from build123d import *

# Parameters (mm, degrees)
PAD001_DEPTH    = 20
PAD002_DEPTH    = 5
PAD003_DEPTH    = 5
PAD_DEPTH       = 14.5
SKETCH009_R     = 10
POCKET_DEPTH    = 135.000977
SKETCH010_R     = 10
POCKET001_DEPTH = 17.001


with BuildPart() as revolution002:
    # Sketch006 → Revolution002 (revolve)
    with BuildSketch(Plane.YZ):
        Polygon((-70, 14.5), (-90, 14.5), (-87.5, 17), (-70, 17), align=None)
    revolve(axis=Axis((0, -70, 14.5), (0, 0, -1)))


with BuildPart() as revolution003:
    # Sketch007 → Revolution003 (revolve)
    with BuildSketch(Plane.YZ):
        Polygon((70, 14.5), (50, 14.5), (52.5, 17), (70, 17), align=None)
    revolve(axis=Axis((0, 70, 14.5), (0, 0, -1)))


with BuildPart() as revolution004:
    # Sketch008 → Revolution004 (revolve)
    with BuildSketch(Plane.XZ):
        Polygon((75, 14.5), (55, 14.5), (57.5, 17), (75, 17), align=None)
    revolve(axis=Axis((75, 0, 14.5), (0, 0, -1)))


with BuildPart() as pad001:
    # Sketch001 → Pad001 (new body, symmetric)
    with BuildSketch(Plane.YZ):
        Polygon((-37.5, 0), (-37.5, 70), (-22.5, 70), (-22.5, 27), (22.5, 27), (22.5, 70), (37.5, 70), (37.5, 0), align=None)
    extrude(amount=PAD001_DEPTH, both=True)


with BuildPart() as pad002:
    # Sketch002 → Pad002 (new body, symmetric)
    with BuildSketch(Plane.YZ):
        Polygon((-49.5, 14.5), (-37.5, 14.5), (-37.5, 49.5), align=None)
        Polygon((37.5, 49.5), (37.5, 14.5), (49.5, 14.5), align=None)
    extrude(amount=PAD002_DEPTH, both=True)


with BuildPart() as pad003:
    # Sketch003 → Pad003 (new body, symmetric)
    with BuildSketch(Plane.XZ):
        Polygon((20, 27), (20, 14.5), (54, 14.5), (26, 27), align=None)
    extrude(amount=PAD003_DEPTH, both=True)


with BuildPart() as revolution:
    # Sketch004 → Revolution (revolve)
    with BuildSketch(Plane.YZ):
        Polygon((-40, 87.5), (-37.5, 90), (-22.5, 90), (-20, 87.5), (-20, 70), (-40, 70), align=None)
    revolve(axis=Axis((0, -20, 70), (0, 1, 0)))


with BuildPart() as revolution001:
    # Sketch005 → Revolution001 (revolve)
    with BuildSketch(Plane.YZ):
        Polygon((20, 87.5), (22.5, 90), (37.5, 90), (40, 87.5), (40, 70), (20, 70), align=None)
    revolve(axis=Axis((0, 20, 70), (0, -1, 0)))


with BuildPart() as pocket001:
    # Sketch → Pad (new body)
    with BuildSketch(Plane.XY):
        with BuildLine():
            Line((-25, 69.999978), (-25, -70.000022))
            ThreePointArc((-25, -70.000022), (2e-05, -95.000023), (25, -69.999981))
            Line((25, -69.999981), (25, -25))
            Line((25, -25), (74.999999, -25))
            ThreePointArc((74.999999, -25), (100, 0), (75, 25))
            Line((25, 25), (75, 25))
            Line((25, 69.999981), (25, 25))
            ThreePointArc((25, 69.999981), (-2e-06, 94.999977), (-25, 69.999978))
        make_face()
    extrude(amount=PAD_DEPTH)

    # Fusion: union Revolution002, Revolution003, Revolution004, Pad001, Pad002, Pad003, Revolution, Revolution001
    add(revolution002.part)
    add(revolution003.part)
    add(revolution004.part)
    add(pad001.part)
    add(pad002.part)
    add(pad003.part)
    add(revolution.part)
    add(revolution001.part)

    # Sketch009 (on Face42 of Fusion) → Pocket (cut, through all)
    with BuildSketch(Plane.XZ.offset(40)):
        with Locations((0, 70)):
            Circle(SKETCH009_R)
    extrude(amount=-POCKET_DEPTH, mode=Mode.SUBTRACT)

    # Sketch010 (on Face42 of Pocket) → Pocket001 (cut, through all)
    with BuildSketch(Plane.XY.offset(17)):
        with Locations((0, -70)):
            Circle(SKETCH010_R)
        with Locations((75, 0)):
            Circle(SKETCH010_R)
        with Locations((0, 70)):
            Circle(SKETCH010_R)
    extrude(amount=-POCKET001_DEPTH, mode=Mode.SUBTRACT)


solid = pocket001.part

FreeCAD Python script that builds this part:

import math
import FreeCAD as App
import Part
import Sketcher
from FreeCAD import Vector
Q = App.Units.Quantity


def add_polygon(sketch, points):
    """Adds a closed chain of lines whose ends are joined by coincident constraints."""
    first, n = sketch.GeometryCount, len(points)
    for a, b in zip(points, points[1:] + points[:1]):
        sketch.addGeometry(Part.LineSegment(App.Vector(*a, 0), App.Vector(*b, 0)), False)
    for i in range(n):
        sketch.addConstraint(Sketcher.Constraint("Coincident", first + i, 2, first + (i + 1) % n, 1))

doc = App.newDocument("Part")
body = doc.addObject("PartDesign::Body", "Body")

# Sketch on YZ plane
sketch1 = body.newObject("Sketcher::SketchObject", "Sketch")
sketch1.AttachmentSupport = (doc.getObject("YZ_Plane"), [""])
sketch1.MapMode = "FlatFace"
add_polygon(sketch1, [(-90, 14.5), (-70, 14.5), (-70, 17), (-87.5, 17)])  # lines 0-3
sketch1.addGeometry(Part.LineSegment(Vector(-70, 17, 0), Vector(-70, 14.5, 0)), True)  # axis
sketch1.addConstraint([
    Sketcher.Constraint("Horizontal", 0),
    Sketcher.Constraint("Vertical", 1),
    Sketcher.Constraint("Horizontal", 2),
    Sketcher.Constraint("Vertical", 4),
    Sketcher.Constraint("Coincident", 4, 1, 1, 2),
    Sketcher.Constraint("Horizontal", 3, 2, 4, 2),
    Sketcher.Constraint("DistanceX", 0, 1, 0, 2, Q("20 mm")),
    Sketcher.Constraint("Angle", 3, Q("-135 deg")),
    Sketcher.Constraint("DistanceX", 2, 2, 2, 1, Q("17.5 mm")),
    Sketcher.Constraint("DistanceX", 0, 2, -1, 1, Q("70 mm")),
    Sketcher.Constraint("DistanceY", -1, 1, 1, 2, Q("17 mm")),
])
revolution = body.newObject("PartDesign::Revolution", "Revolution")
revolution.Profile = sketch1
revolution.ReferenceAxis = (sketch1, ["Axis0"])
revolution.Angle = 360
body2 = doc.addObject("PartDesign::Body", "Body001")

# Sketch on YZ plane
sketch2 = body2.newObject("Sketcher::SketchObject", "Sketch001")
sketch2.AttachmentSupport = (doc.getObject("YZ_Plane001"), [""])
sketch2.MapMode = "FlatFace"
add_polygon(sketch2, [(50, 14.5), (70, 14.5), (70, 17), (52.5, 17)])  # lines 0-3
sketch2.addGeometry(Part.LineSegment(Vector(70, 17, 0), Vector(70, 14.5, 0)), True)  # axis
sketch2.addConstraint([
    Sketcher.Constraint("Horizontal", 0),
    Sketcher.Constraint("Vertical", 1),
    Sketcher.Constraint("Horizontal", 2),
    Sketcher.Constraint("Vertical", 4),
    Sketcher.Constraint("Coincident", 4, 1, 1, 2),
    Sketcher.Constraint("Horizontal", 3, 2, 4, 2),
    Sketcher.Constraint("DistanceX", 0, 1, 0, 2, Q("20 mm")),
    Sketcher.Constraint("Angle", 3, Q("-135 deg")),
    Sketcher.Constraint("DistanceX", 2, 2, 2, 1, Q("17.5 mm")),
    Sketcher.Constraint("DistanceX", -1, 1, 0, 2, Q("70 mm")),
    Sketcher.Constraint("DistanceY", -1, 1, 1, 2, Q("17 mm")),
])
revolution2 = body2.newObject("PartDesign::Revolution", "Revolution001")
revolution2.Profile = sketch2
revolution2.ReferenceAxis = (sketch2, ["Axis0"])
revolution2.Angle = 360
body3 = doc.addObject("PartDesign::Body", "Body002")

# Sketch on XZ plane
sketch3 = body3.newObject("Sketcher::SketchObject", "Sketch002")
sketch3.AttachmentSupport = (doc.getObject("XZ_Plane002"), [""])
sketch3.MapMode = "FlatFace"
add_polygon(sketch3, [(55, 14.5), (75, 14.5), (75, 17), (57.5, 17)])  # lines 0-3
sketch3.addGeometry(Part.LineSegment(Vector(75, 17, 0), Vector(75, 14.5, 0)), True)  # axis
sketch3.addConstraint([
    Sketcher.Constraint("Horizontal", 0),
    Sketcher.Constraint("Vertical", 1),
    Sketcher.Constraint("Horizontal", 2),
    Sketcher.Constraint("Vertical", 4),
    Sketcher.Constraint("Coincident", 4, 1, 1, 2),
    Sketcher.Constraint("Horizontal", 3, 2, 4, 2),
    Sketcher.Constraint("DistanceX", 0, 1, 0, 2, Q("20 mm")),
    Sketcher.Constraint("Angle", 3, Q("-135 deg")),
    Sketcher.Constraint("DistanceX", 2, 2, 2, 1, Q("17.5 mm")),
    Sketcher.Constraint("DistanceX", -1, 1, 0, 2, Q("75 mm")),
    Sketcher.Constraint("DistanceY", -1, 1, 1, 2, Q("17 mm")),
])
revolution3 = body3.newObject("PartDesign::Revolution", "Revolution002")
revolution3.Profile = sketch3
revolution3.ReferenceAxis = (sketch3, ["Axis0"])
revolution3.Angle = 360
body4 = doc.addObject("PartDesign::Body", "Body003")

# Sketch on YZ plane
sketch4 = body4.newObject("Sketcher::SketchObject", "Sketch003")
sketch4.AttachmentSupport = (doc.getObject("YZ_Plane003"), [""])
sketch4.MapMode = "FlatFace"
add_polygon(sketch4, [(-38, 70), (-38, 0), (38, 0), (38, 70), (22, 70), (22, 27), (-22, 27), (-22, 70)])  # lines 0-7
sketch4.addConstraint([
    Sketcher.Constraint("Vertical", 0),
    Sketcher.Constraint("Horizontal", 1),
    Sketcher.Constraint("Vertical", 2),
    Sketcher.Constraint("Horizontal", 3),
    Sketcher.Constraint("Vertical", 4),
    Sketcher.Constraint("Horizontal", 5),
    Sketcher.Constraint("Vertical", 6),
    Sketcher.Constraint("Horizontal", 7),
    Sketcher.Constraint("Symmetric", 0, 2, 1, 2, -1, 1),
    Sketcher.Constraint("Symmetric", 3, 2, 6, 2, -2),
    Sketcher.Constraint("DistanceX", 1, 1, 1, 2, Q("75 mm")),
    Sketcher.Constraint("DistanceX", 3, 2, 3, 1, Q("15 mm")),
    Sketcher.Constraint("DistanceY", 0, 2, 0, 1, Q("70 mm")),
    Sketcher.Constraint("DistanceY", 4, 2, 4, 1, Q("43 mm")),
])
pad1 = body4.newObject("PartDesign::Pad", "Pad")
pad1.Profile = sketch4
pad1.Length = 40
pad1.Midplane = True
body5 = doc.addObject("PartDesign::Body", "Body004")
body5.AllowCompound = True

# Sketch on YZ plane
sketch5 = body5.newObject("Sketcher::SketchObject", "Sketch004")
sketch5.AttachmentSupport = (doc.getObject("YZ_Plane004"), [""])
sketch5.MapMode = "FlatFace"
add_polygon(sketch5, [(-50, 14), (-38, 14), (-38, 50)])  # lines 0-2
add_polygon(sketch5, [(38, 50), (38, 14), (50, 14)])  # lines 3-5
sketch5.addConstraint([
    Sketcher.Constraint("Horizontal", 0),
    Sketcher.Constraint("Vertical", 1),
    Sketcher.Constraint("Vertical", 3),
    Sketcher.Constraint("Horizontal", 4),
    Sketcher.Constraint("Symmetric", 0, 2, 3, 2, -2),
    Sketcher.Constraint("Horizontal", 1, 2, 5, 2),
    Sketcher.Constraint("Equal", 0, 4),
    Sketcher.Constraint("DistanceX", 0, 1, 0, 2, Q("12 mm")),
    Sketcher.Constraint("DistanceY", 1, 1, 1, 2, Q("35 mm")),
    Sketcher.Constraint("DistanceX", 0, 2, 3, 2, Q("75 mm")),
    Sketcher.Constraint("DistanceY", -1, 1, 0, 2, Q("14.5 mm")),
])
pad2 = body5.newObject("PartDesign::Pad", "Pad001")
pad2.Profile = sketch5
pad2.Length = 10
pad2.Midplane = True
body6 = doc.addObject("PartDesign::Body", "Body005")

# Sketch on XZ plane
sketch6 = body6.newObject("Sketcher::SketchObject", "Sketch005")
sketch6.AttachmentSupport = (doc.getObject("XZ_Plane005"), [""])
sketch6.MapMode = "FlatFace"
add_polygon(sketch6, [(20, 27), (20, 14), (54, 14), (26, 27)])  # lines 0-3
sketch6.addConstraint([
    Sketcher.Constraint("Vertical", 0),
    Sketcher.Constraint("Horizontal", 1),
    Sketcher.Constraint("Horizontal", 3),
    Sketcher.Constraint("DistanceX", 1, 1, 1, 2, Q("34 mm")),
    Sketcher.Constraint("DistanceX", 3, 2, 3, 1, Q("6 mm")),
    Sketcher.Constraint("DistanceY", 0, 2, 0, 1, Q("12.5 mm")),
    Sketcher.Constraint("DistanceX", -1, 1, 0, 2, Q("20 mm")),
    Sketcher.Constraint("DistanceY", -1, 1, 2, 2, Q("27 mm")),
])
pad3 = body6.newObject("PartDesign::Pad", "Pad002")
pad3.Profile = sketch6
pad3.Length = 10
pad3.Midplane = True
body7 = doc.addObject("PartDesign::Body", "Body006")

# Sketch on YZ plane
sketch7 = body7.newObject("Sketcher::SketchObject", "Sketch006")
sketch7.AttachmentSupport = (doc.getObject("YZ_Plane006"), [""])
sketch7.MapMode = "FlatFace"
add_polygon(sketch7, [(-37.5, 90), (-40, 87.5), (-40, 70), (-20, 70), (-20, 87.5), (-22.5, 90)])  # lines 0-5
sketch7.addGeometry(Part.LineSegment(Vector(-40, 70, 0), Vector(-20, 70, 0)), True)  # axis
sketch7.addConstraint([
    Sketcher.Constraint("Vertical", 1),
    Sketcher.Constraint("Horizontal", 2),
    Sketcher.Constraint("Vertical", 3),
    Sketcher.Constraint("Horizontal", 5),
    Sketcher.Constraint("Horizontal", 6),
    Sketcher.Constraint("Coincident", 6, 1, 1, 2),
    Sketcher.Constraint("Perpendicular", 0, 4),
    Sketcher.Constraint("Horizontal", 0, 2, 3, 2),
    Sketcher.Constraint("Vertical", 3, 2, 6, 2),
    Sketcher.Constraint("Equal", 0, 4),
    Sketcher.Constraint("DistanceX", 2, 1, 2, 2, Q("20 mm")),
    Sketcher.Constraint("DistanceX", 5, 2, 5, 1, Q("15 mm")),
    Sketcher.Constraint("DistanceY", 1, 2, 1, 1, Q("17.5 mm")),
    Sketcher.Constraint("DistanceX", 0, 2, -1, 1, Q("40 mm")),
    Sketcher.Constraint("DistanceY", -1, 1, 1, 2, Q("70 mm")),
])
revolution4 = body7.newObject("PartDesign::Revolution", "Revolution003")
revolution4.Profile = sketch7
revolution4.ReferenceAxis = (sketch7, ["Axis0"])
revolution4.Angle = 360
body8 = doc.addObject("PartDesign::Body", "Body007")

# Sketch on YZ plane
sketch8 = body8.newObject("Sketcher::SketchObject", "Sketch007")
sketch8.AttachmentSupport = (doc.getObject("YZ_Plane007"), [""])
sketch8.MapMode = "FlatFace"
add_polygon(sketch8, [(22.5, 90), (20, 87.5), (20, 70), (40, 70), (40, 87.5), (37.5, 90)])  # lines 0-5
sketch8.addGeometry(Part.LineSegment(Vector(40, 70, 0), Vector(20, 70, 0)), True)  # axis
sketch8.addConstraint([
    Sketcher.Constraint("Vertical", 1),
    Sketcher.Constraint("Horizontal", 2),
    Sketcher.Constraint("Vertical", 3),
    Sketcher.Constraint("Horizontal", 5),
    Sketcher.Constraint("Horizontal", 6),
    Sketcher.Constraint("Coincident", 6, 1, 2, 2),
    Sketcher.Constraint("Perpendicular", 0, 4),
    Sketcher.Constraint("Horizontal", 0, 2, 3, 2),
    Sketcher.Constraint("Vertical", 0, 2, 6, 2),
    Sketcher.Constraint("Equal", 0, 4),
    Sketcher.Constraint("DistanceX", 2, 1, 2, 2, Q("20 mm")),
    Sketcher.Constraint("DistanceX", 5, 2, 5, 1, Q("15 mm")),
    Sketcher.Constraint("DistanceY", 1, 2, 1, 1, Q("17.5 mm")),
    Sketcher.Constraint("DistanceX", -1, 1, 0, 2, Q("20 mm")),
    Sketcher.Constraint("DistanceY", -1, 1, 1, 2, Q("70 mm")),
])
revolution5 = body8.newObject("PartDesign::Revolution", "Revolution004")
revolution5.Profile = sketch8
revolution5.ReferenceAxis = (sketch8, ["Axis0"])
revolution5.Angle = 360
body9 = doc.addObject("PartDesign::Body", "Body008")

# Sketch on XY plane
sketch9 = body9.newObject("Sketcher::SketchObject", "Sketch008")
sketch9.AttachmentSupport = (doc.getObject("XY_Plane008"), [""])
sketch9.MapMode = "FlatFace"
sketch9.addGeometry([
    Part.LineSegment(Vector(-25, 69.999978, 0), Vector(-25, -70.000022, 0)),  # 0
    Part.ArcOfCircle(Part.Circle(Vector(0, -70.000023, 0), Vector(0, 0, 1), 25), math.radians(179.999998), math.radians(360.000096)),  # 1
    Part.LineSegment(Vector(25, -69.999981, 0), Vector(25, -25, 0)),  # 2
    Part.LineSegment(Vector(25, -25, 0), Vector(74.999999, -25, 0)),  # 3
    Part.ArcOfCircle(Part.Circle(Vector(75, 0, 0), Vector(0, 0, 1), 25), math.radians(-90.000002), math.radians(90)),  # 4
    Part.LineSegment(Vector(75, 25, 0), Vector(25, 25, 0)),  # 5
    Part.LineSegment(Vector(25, 25, 0), Vector(25, 69.999981, 0)),  # 6
    Part.ArcOfCircle(Part.Circle(Vector(0, 69.999977, 0), Vector(0, 0, 1), 25), math.radians(0.000009), math.radians(179.999998)),  # 7
], False)
sketch9.addConstraint([
    Sketcher.Constraint("Coincident", 0, 2, 1, 1),
    Sketcher.Constraint("Coincident", 1, 2, 2, 1),
    Sketcher.Constraint("Coincident", 2, 2, 3, 1),
    Sketcher.Constraint("Coincident", 3, 2, 4, 1),
    Sketcher.Constraint("Coincident", 4, 2, 5, 1),
    Sketcher.Constraint("Coincident", 5, 2, 6, 1),
    Sketcher.Constraint("Coincident", 6, 2, 7, 1),
    Sketcher.Constraint("Coincident", 7, 2, 0, 1),
    Sketcher.Constraint("Vertical", 0),
    Sketcher.Constraint("Vertical", 2),
    Sketcher.Constraint("Horizontal", 3),
    Sketcher.Constraint("Horizontal", 5),
    Sketcher.Constraint("Vertical", 6),
    Sketcher.Constraint("PointOnObject", 1, 3, -2),
    Sketcher.Constraint("PointOnObject", 4, 3, -1),
    Sketcher.Constraint("PointOnObject", 7, 3, -2),
    Sketcher.Constraint("Radius", 1, Q("25 mm")),
    Sketcher.Constraint("Radius", 4, Q("25 mm")),
    Sketcher.Constraint("DistanceX", 3, 1, 3, 2, Q("49.999999 mm")),
    Sketcher.Constraint("DistanceX", 5, 2, 5, 1, Q("50 mm")),
    Sketcher.Constraint("DistanceY", 0, 2, 0, 1, Q("140 mm")),
    Sketcher.Constraint("DistanceX", -1, 1, 4, 3, Q("75 mm")),
    Sketcher.Constraint("DistanceY", 1, 3, 7, 3, Q("140 mm")),
    Sketcher.Constraint("DistanceY", 0, 2, 7, 3, Q("139.999999 mm")),
    Sketcher.Constraint("DistanceY", 2, 1, 2, 2, Q("44.999981 mm")),
    Sketcher.Constraint("DistanceY", 6, 1, 6, 2, Q("44.999981 mm")),
    Sketcher.Constraint("DistanceY", 0, 2, -1, 1, Q("70.000022 mm")),
])
pad4 = body9.newObject("PartDesign::Pad", "Pad003")
pad4.Profile = sketch9
pad4.Length = 14.5
doc.recompute()

boolean = body9.newObject("PartDesign::Boolean", "Boolean")
boolean.Type = "Fuse"
boolean.addObjects([body])
doc.recompute()

boolean2 = body9.newObject("PartDesign::Boolean", "Boolean001")
boolean2.Type = "Fuse"
boolean2.addObjects([body2])
doc.recompute()

boolean3 = body9.newObject("PartDesign::Boolean", "Boolean002")
boolean3.Type = "Fuse"
boolean3.addObjects([body3])
doc.recompute()

boolean4 = body9.newObject("PartDesign::Boolean", "Boolean003")
boolean4.Type = "Fuse"
boolean4.addObjects([body4])
doc.recompute()

boolean5 = body9.newObject("PartDesign::Boolean", "Boolean004")
boolean5.Type = "Fuse"
boolean5.addObjects([body5])
doc.recompute()

boolean6 = body9.newObject("PartDesign::Boolean", "Boolean005")
boolean6.Type = "Fuse"
boolean6.addObjects([body6])
doc.recompute()

boolean7 = body9.newObject("PartDesign::Boolean", "Boolean006")
boolean7.Type = "Fuse"
boolean7.addObjects([body7])
doc.recompute()

boolean8 = body9.newObject("PartDesign::Boolean", "Boolean007")
boolean8.Type = "Fuse"
boolean8.addObjects([body8])

# Sketch on XZ plane
sketch10 = body9.newObject("Sketcher::SketchObject", "Sketch009")
sketch10.AttachmentSupport = (doc.getObject("XZ_Plane008"), [""])
sketch10.MapMode = "FlatFace"
sketch10.AttachmentOffset = App.Placement(Vector(0, 0, 40), App.Rotation())
sketch10.addGeometry(Part.Circle(Vector(0, 70, 0), Vector(0, 0, 1), 10), False)
sketch10.addConstraint([
    Sketcher.Constraint("PointOnObject", 0, 3, -2),
    Sketcher.Constraint("Diameter", 0, Q("20 mm")),
    Sketcher.Constraint("DistanceY", -1, 1, 0, 3, Q("70 mm")),
])
pocket1 = body9.newObject("PartDesign::Pocket", "Pocket")
pocket1.Profile = sketch10
pocket1.Type = "ThroughAll"

# Sketch on XY plane
sketch11 = body9.newObject("Sketcher::SketchObject", "Sketch010")
sketch11.AttachmentSupport = (doc.getObject("XY_Plane008"), [""])
sketch11.MapMode = "FlatFace"
sketch11.AttachmentOffset = App.Placement(Vector(0, 0, 17), App.Rotation())
sketch11.addGeometry([
    Part.Circle(Vector(0, -70, 0), Vector(0, 0, 1), 10),
    Part.Circle(Vector(75, 0, 0), Vector(0, 0, 1), 10),
    Part.Circle(Vector(0, 70, 0), Vector(0, 0, 1), 10),
], False)
sketch11.addConstraint([
    Sketcher.Constraint("Equal", 0, 1),
    Sketcher.Constraint("Equal", 1, 2),
    Sketcher.Constraint("Symmetric", 0, 3, 2, 3, -1, 1),
    Sketcher.Constraint("PointOnObject", 0, 3, -2),
    Sketcher.Constraint("PointOnObject", 1, 3, -1),
    Sketcher.Constraint("Diameter", 0, Q("20 mm")),
    Sketcher.Constraint("DistanceY", 0, 3, -1, 1, Q("70 mm")),
    Sketcher.Constraint("DistanceX", -1, 1, 1, 3, Q("75 mm")),
])
pocket2 = body9.newObject("PartDesign::Pocket", "Pocket001")
pocket2.Profile = sketch11
pocket2.Type = "ThroughAll"

doc.recompute()
